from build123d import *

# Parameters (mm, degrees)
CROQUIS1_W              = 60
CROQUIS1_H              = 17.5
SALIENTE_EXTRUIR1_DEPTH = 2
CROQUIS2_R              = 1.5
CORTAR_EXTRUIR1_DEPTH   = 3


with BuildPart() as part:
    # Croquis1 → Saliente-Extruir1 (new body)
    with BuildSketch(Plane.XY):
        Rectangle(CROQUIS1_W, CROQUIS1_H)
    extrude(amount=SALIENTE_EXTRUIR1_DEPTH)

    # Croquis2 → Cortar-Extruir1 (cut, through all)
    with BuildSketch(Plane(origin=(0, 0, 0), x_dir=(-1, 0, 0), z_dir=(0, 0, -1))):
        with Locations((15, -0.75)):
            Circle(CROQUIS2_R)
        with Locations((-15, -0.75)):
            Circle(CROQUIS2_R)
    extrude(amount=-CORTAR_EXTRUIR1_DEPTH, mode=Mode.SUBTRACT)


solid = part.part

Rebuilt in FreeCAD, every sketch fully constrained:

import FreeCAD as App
import Part
import Sketcher


def add_polygon(sketch, points):
    """Adds a closed chain of lines whose ends are joined by coincident constraints."""
    first, n = sketch.GeometryCount, len(points)
    for a, b in zip(points, points[1:] + points[:1]):
        sketch.addGeometry(Part.LineSegment(App.Vector(*a, 0), App.Vector(*b, 0)), False)
    for i in range(n):
        sketch.addConstraint(Sketcher.Constraint("Coincident", first + i, 2, first + (i + 1) % n, 1))

doc = App.newDocument("Part")
body = doc.addObject("PartDesign::Body", "Body")

# Sketch on XY plane
sketch1 = body.newObject("Sketcher::SketchObject", "Sketch")
sketch1.AttachmentSupport = (doc.getObject("XY_Plane"), [""])
sketch1.MapMode = "FlatFace"
add_polygon(sketch1, [(-30, 9), (-30, -9), (30, -9), (30, 9)])  # lines 0-3
sketch1.addConstraint(Sketcher.Constraint("Vertical", 0))
sketch1.addConstraint(Sketcher.Constraint("Horizontal", 1))
sketch1.addConstraint(Sketcher.Constraint("Vertical", 2))
sketch1.addConstraint(Sketcher.Constraint("Horizontal", 3))
sketch1.addConstraint(Sketcher.Constraint("Symmetric", 0, 2, 2, 2, -1, 1))
sketch1.addConstraint(Sketcher.Constraint("DistanceX", 1, 1, 1, 2, 60.0))
sketch1.addConstraint(Sketcher.Constraint("DistanceY", 0, 2, 0, 1, 17.5))
pad1 = body.newObject("PartDesign::Pad", "Pad")
pad1.Profile = sketch1
pad1.Length = 2

# Sketch on XY plane
sketch2 = body.newObject("Sketcher::SketchObject", "Sketch001")
sketch2.AttachmentSupport = (doc.getObject("XY_Plane"), [""])
sketch2.MapMode = "FlatFace"
sketch2.addGeometry(Part.Circle(App.Vector(-15, -0.8, 0), App.Vector(0, 0, 1), 1.5), False)
sketch2.addGeometry(Part.Circle(App.Vector(15, -0.8, 0), App.Vector(0, 0, 1), 1.5), False)
sketch2.addConstraint(Sketcher.Constraint("Equal", 0, 1))
sketch2.addConstraint(Sketcher.Constraint("Symmetric", 0, 3, 1, 3, -2))
sketch2.addConstraint(Sketcher.Constraint("Diameter", 0, 3.0))
sketch2.addConstraint(Sketcher.Constraint("DistanceX", 0, 3, -1, 1, 15.0))
sketch2.addConstraint(Sketcher.Constraint("DistanceY", 0, 3, -1, 1, 0.75))
pocket1 = body.newObject("PartDesign::Pocket", "Pocket")
pocket1.Profile = sketch2
pocket1.Type = "ThroughAll"
pocket1.Reversed = True

doc.recompute()
